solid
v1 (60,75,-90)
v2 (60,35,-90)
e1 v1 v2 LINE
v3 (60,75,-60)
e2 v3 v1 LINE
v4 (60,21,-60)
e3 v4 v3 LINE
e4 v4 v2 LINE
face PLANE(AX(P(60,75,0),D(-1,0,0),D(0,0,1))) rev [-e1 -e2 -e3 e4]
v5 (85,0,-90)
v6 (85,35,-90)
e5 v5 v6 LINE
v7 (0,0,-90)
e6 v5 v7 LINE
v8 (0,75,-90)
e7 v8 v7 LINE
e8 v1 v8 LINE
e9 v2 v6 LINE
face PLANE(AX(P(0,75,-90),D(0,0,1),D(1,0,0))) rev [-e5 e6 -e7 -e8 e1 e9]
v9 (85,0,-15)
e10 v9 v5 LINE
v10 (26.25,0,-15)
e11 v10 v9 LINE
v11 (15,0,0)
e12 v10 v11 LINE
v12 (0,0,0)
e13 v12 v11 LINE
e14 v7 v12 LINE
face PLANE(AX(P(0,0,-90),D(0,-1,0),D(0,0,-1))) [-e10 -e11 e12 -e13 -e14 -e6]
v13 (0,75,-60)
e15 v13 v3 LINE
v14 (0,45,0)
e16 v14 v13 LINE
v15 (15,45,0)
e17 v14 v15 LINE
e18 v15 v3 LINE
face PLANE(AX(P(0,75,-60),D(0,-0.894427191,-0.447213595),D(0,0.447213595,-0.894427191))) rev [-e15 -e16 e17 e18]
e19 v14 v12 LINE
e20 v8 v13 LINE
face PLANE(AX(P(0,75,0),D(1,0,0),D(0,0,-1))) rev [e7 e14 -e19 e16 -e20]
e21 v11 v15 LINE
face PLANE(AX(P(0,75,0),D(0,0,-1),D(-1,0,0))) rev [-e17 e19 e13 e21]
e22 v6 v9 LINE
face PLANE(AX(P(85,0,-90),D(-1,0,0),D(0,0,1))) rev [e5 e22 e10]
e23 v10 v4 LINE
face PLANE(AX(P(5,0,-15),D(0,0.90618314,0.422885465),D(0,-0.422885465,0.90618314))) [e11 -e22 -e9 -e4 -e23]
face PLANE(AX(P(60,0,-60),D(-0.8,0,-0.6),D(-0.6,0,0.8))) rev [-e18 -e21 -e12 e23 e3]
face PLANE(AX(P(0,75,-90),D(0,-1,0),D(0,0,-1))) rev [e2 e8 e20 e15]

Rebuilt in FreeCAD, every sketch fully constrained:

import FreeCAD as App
import Part
import Sketcher
from FreeCAD import Vector
Q = App.Units.Quantity

doc = App.newDocument("Part")
body = doc.addObject("PartDesign::Body", "Body")

sketch1 = body.newObject("Sketcher::SketchObject", "Sketch")
sketch1.AttachmentSupport = (doc.getObject("XZ_Plane"), [""])
sketch1.MapMode = "FlatFace"
sketch1.addGeometry([
    Part.LineSegment(Vector(0, -90, 0), Vector(0, 0, 0)),
    Part.LineSegment(Vector(0, 0, 0), Vector(60, 0, 0)),
    Part.LineSegment(Vector(60, 0, 0), Vector(60, -90, 0)),
    Part.LineSegment(Vector(60, -90, 0), Vector(0, -90, 0)),
], False)
sketch1.addConstraint([
    Sketcher.Constraint("Coincident", 0, 2, 1, 1),
    Sketcher.Constraint("Coincident", 1, 2, 2, 1),
    Sketcher.Constraint("Coincident", 2, 2, 3, 1),
    Sketcher.Constraint("Coincident", 3, 2, 0, 1),
    Sketcher.Constraint("Vertical", 0),
    Sketcher.Constraint("Horizontal", 1),
    Sketcher.Constraint("Vertical", 2),
    Sketcher.Constraint("Horizontal", 3),
    Sketcher.Constraint("Coincident", 0, 2, -1, 1),
    Sketcher.Constraint("DistanceX", 1, 1, 1, 2, Q("60 mm")),
    Sketcher.Constraint("DistanceY", 0, 1, 0, 2, Q("90 mm")),
])
pad1 = body.newObject("PartDesign::Pad", "Pad")
pad1.Profile = sketch1
pad1.Length = 75
pad1.Reversed = True

sketch2 = body.newObject("Sketcher::SketchObject", "Sketch001")
sketch2.AttachmentSupport = (doc.getObject("YZ_Plane"), [""])
sketch2.MapMode = "FlatFace"
sketch2.AttachmentOffset = App.Placement(Vector(0, 0, 60), App.Rotation())
sketch2.addGeometry([
    Part.LineSegment(Vector(45, 0, 0), Vector(75, -60, 0)),
    Part.LineSegment(Vector(75, -60, 0), Vector(75, 0, 0)),
    Part.LineSegment(Vector(75, 0, 0), Vector(45, 0, 0)),
], False)
sketch2.addConstraint([
    Sketcher.Constraint("Coincident", 0, 2, 1, 1),
    Sketcher.Constraint("Coincident", 1, 2, 2, 1),
    Sketcher.Constraint("Coincident", 2, 2, 0, 1),
    Sketcher.Constraint("Vertical", 1),
    Sketcher.Constraint("Horizontal", 2),
    Sketcher.Constraint("PointOnObject", 1, 2, -1),
    Sketcher.Constraint("DistanceX", 2, 2, 2, 1, Q("30 mm")),
    Sketcher.Constraint("DistanceY", 1, 1, 1, 2, Q("60 mm")),
    Sketcher.Constraint("DistanceX", -1, 1, 0, 2, Q("75 mm")),
])
pocket1 = body.newObject("PartDesign::Pocket", "Pocket")
pocket1.Profile = sketch2
pocket1.Type = "ThroughAll"

sketch3 = body.newObject("Sketcher::SketchObject", "Sketch002")
sketch3.AttachmentSupport = (doc.getObject("XZ_Plane"), [""])
sketch3.MapMode = "FlatFace"
sketch3.AttachmentOffset = App.Placement(Vector(0, 0, -75), App.Rotation())
sketch3.addGeometry([
    Part.LineSegment(Vector(60, -60, 0), Vector(15, 0, 0)),
    Part.LineSegment(Vector(15, 0, 0), Vector(60, 0, 0)),
    Part.LineSegment(Vector(60, 0, 0), Vector(60, -60, 0)),
], False)
sketch3.addConstraint([
    Sketcher.Constraint("Coincident", 0, 2, 1, 1),
    Sketcher.Constraint("Coincident", 1, 2, 2, 1),
    Sketcher.Constraint("Coincident", 2, 2, 0, 1),
    Sketcher.Constraint("Horizontal", 1),
    Sketcher.Constraint("Vertical", 2),
    Sketcher.Constraint("PointOnObject", 0, 2, -1),
    Sketcher.Constraint("DistanceX", 1, 1, 1, 2, Q("45 mm")),
    Sketcher.Constraint("DistanceY", 2, 2, 2, 1, Q("60 mm")),
    Sketcher.Constraint("DistanceX", -1, 1, 0, 2, Q("15 mm")),
])
pocket2 = body.newObject("PartDesign::Pocket", "Pocket001")
pocket2.Profile = sketch3
pocket2.Type = "ThroughAll"
pocket2.Reversed = True

sketch4 = body.newObject("Sketcher::SketchObject", "Sketch003")
sketch4.AttachmentSupport = (doc.getObject("YZ_Plane"), [""])
sketch4.MapMode = "FlatFace"
sketch4.AttachmentOffset = App.Placement(Vector(0, 0, 60), App.Rotation())
sketch4.addGeometry([
    Part.LineSegment(Vector(0, -15, 0), Vector(0, -90, 0)),
    Part.LineSegment(Vector(0, -90, 0), Vector(35, -90, 0)),
    Part.LineSegment(Vector(35, -90, 0), Vector(0, -15, 0)),
], False)
sketch4.addConstraint([
    Sketcher.Constraint("Coincident", 0, 2, 1, 1),
    Sketcher.Constraint("Coincident", 1, 2, 2, 1),
    Sketcher.Constraint("Coincident", 2, 2, 0, 1),
    Sketcher.Constraint("Vertical", 0),
    Sketcher.Constraint("Horizontal", 1),
    Sketcher.Constraint("PointOnObject", 0, 2, -2),
    Sketcher.Constraint("DistanceX", 1, 1, 1, 2, Q("35 mm")),
    Sketcher.Constraint("DistanceY", 0, 2, 0, 1, Q("75 mm")),
    Sketcher.Constraint("DistanceY", 0, 2, -1, 1, Q("90 mm")),
])
pad2 = body.newObject("PartDesign::Pad", "Pad001")
pad2.Profile = sketch4
pad2.Type = "TwoLengths"
pad2.Length = 25
pad2.Length2 = 55

doc.recompute()
